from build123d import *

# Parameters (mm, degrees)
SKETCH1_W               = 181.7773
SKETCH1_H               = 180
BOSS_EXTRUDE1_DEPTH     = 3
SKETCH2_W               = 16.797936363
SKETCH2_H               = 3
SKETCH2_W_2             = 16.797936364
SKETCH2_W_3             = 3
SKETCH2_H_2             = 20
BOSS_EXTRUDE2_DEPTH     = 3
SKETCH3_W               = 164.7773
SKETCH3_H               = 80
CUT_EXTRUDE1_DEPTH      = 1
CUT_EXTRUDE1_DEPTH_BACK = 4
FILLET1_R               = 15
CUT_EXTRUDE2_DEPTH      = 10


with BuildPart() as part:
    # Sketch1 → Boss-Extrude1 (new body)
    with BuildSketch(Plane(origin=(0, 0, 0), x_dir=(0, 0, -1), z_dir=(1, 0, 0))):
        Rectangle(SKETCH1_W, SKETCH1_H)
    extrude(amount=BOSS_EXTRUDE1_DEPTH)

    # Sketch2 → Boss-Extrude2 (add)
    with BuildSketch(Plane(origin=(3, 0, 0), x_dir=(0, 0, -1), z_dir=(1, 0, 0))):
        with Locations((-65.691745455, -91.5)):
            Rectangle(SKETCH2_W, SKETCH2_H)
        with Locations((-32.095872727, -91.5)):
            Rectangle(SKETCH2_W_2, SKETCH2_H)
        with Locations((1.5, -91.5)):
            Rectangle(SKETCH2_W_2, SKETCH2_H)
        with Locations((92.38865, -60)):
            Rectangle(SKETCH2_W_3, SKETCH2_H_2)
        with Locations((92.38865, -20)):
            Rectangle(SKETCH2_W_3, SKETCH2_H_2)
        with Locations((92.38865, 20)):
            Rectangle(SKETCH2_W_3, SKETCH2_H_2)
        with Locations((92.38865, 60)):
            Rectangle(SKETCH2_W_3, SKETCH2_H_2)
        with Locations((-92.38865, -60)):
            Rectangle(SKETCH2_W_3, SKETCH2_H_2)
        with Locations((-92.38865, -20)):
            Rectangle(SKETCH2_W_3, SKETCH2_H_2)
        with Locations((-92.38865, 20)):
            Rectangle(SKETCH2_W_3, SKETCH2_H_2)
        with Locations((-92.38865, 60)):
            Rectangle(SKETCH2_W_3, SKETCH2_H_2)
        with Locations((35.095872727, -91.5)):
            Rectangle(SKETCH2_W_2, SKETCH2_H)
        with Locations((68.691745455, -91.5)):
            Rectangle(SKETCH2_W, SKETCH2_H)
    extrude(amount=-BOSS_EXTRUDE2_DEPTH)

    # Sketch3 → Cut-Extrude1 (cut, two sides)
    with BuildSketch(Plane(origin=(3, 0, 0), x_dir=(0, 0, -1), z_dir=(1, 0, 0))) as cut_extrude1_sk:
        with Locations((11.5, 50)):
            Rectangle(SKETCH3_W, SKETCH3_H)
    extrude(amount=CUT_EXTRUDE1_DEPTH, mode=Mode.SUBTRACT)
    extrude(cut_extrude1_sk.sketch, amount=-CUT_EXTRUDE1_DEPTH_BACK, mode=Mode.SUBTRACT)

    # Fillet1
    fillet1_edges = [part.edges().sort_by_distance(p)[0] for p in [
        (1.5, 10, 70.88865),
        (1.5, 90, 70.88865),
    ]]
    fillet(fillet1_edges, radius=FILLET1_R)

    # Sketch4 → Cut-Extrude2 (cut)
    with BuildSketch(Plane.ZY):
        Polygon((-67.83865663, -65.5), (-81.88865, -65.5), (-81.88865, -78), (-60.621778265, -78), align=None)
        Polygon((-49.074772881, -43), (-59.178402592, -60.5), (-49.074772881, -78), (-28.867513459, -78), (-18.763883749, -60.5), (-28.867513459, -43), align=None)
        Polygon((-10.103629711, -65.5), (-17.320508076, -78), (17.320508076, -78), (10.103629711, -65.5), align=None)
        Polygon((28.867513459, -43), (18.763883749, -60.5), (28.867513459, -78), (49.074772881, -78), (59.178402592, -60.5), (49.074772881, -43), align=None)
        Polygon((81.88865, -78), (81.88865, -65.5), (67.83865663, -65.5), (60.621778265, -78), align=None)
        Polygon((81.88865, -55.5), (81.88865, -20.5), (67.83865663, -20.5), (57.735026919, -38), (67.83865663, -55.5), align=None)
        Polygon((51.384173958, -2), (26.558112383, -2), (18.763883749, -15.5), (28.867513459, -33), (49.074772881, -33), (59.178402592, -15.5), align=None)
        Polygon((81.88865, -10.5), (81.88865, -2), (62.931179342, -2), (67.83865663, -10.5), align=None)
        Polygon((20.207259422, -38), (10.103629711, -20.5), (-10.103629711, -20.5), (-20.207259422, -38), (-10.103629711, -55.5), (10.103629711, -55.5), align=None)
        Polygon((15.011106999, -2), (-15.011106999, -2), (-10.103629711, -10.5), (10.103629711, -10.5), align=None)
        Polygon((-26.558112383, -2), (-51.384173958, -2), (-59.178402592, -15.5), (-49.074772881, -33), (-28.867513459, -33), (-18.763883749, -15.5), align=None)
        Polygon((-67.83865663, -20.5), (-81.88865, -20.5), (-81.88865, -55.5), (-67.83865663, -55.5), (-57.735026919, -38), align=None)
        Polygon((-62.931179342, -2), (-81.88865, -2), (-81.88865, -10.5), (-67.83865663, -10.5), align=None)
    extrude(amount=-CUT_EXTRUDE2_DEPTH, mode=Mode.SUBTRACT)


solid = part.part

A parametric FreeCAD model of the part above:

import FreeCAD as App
import Part
import Sketcher
from FreeCAD import Vector
Q = App.Units.Quantity


def edges_at(feature, points):
    """Names of the edges that pass closest to the given points."""
    edges = feature.Shape.Edges
    near = lambda p: min(range(len(edges)), key=lambda i: edges[i].distToShape(Part.Vertex(*p))[0])
    return sorted({f"Edge{near(p) + 1}" for p in points})


def add_polygon(sketch, points):
    """Adds a closed chain of lines whose ends are joined by coincident constraints."""
    first, n = sketch.GeometryCount, len(points)
    for a, b in zip(points, points[1:] + points[:1]):
        sketch.addGeometry(Part.LineSegment(App.Vector(*a, 0), App.Vector(*b, 0)), False)
    for i in range(n):
        sketch.addConstraint(Sketcher.Constraint("Coincident", first + i, 2, first + (i + 1) % n, 1))

doc = App.newDocument("Part")
body = doc.addObject("PartDesign::Body", "Body")

sketch1 = body.newObject("Sketcher::SketchObject", "Sketch")
sketch1.AttachmentSupport = (doc.getObject("YZ_Plane"), [""])
sketch1.MapMode = "FlatFace"
add_polygon(sketch1, [(90, 90.88865), (-90, 90.88865), (-90, -90.88865), (90, -90.88865)])
sketch1.addConstraint([
    Sketcher.Constraint("Horizontal", 0),
    Sketcher.Constraint("Vertical", 1),
    Sketcher.Constraint("Horizontal", 2),
    Sketcher.Constraint("Vertical", 3),
    Sketcher.Constraint("Symmetric", 0, 2, 2, 2, -1, 1),
    Sketcher.Constraint("DistanceX", 0, 2, 0, 1, Q("180 mm")),
    Sketcher.Constraint("DistanceY", 1, 2, 1, 1, Q("181.7773 mm")),
])
pad1 = body.newObject("PartDesign::Pad", "Pad")
pad1.Profile = sketch1
pad1.Length = 3

sketch2 = body.newObject("Sketcher::SketchObject", "Sketch001")
sketch2.AttachmentSupport = (doc.getObject("YZ_Plane"), [""])
sketch2.MapMode = "FlatFace"
sketch2.AttachmentOffset = App.Placement(Vector(0, 0, 3), App.Rotation())
add_polygon(sketch2, [(-90, 74.090714), (-93, 74.090714), (-93, 57.292777), (-90, 57.292777)])
add_polygon(sketch2, [(-90, 40.494841), (-93, 40.494841), (-93, 23.696905), (-90, 23.696905)])
add_polygon(sketch2, [(-90, 6.898968), (-93, 6.898968), (-93, -9.898968), (-90, -9.898968)])
add_polygon(sketch2, [(-50, -90.88865), (-70, -90.88865), (-70, -93.88865), (-50, -93.88865)])
add_polygon(sketch2, [(-10, -90.88865), (-30, -90.88865), (-30, -93.88865), (-10, -93.88865)])
add_polygon(sketch2, [(30, -90.88865), (10, -90.88865), (10, -93.88865), (30, -93.88865)])
add_polygon(sketch2, [(70, -90.88865), (50, -90.88865), (50, -93.88865), (70, -93.88865)])
add_polygon(sketch2, [(-50, 93.88865), (-70, 93.88865), (-70, 90.88865), (-50, 90.88865)])
add_polygon(sketch2, [(-10, 93.88865), (-30, 93.88865), (-30, 90.88865), (-10, 90.88865)])
add_polygon(sketch2, [(30, 93.88865), (10, 93.88865), (10, 90.88865), (30, 90.88865)])
add_polygon(sketch2, [(70, 93.88865), (50, 93.88865), (50, 90.88865), (70, 90.88865)])
add_polygon(sketch2, [(-90, -26.696905), (-93, -26.696905), (-93, -43.494841), (-90, -43.494841)])
add_polygon(sketch2, [(-90, -60.292777), (-93, -60.292777), (-93, -77.090714), (-90, -77.090714)])
sketch2.addConstraint([
    Sketcher.Constraint("Horizontal", 0),
    Sketcher.Constraint("Vertical", 1),
    Sketcher.Constraint("Horizontal", 2),
    Sketcher.Constraint("Vertical", 3),
    Sketcher.Constraint("Horizontal", 4),
    Sketcher.Constraint("Vertical", 5),
    Sketcher.Constraint("Horizontal", 6),
    Sketcher.Constraint("Vertical", 7),
    Sketcher.Constraint("Horizontal", 8),
    Sketcher.Constraint("Vertical", 9),
    Sketcher.Constraint("Horizontal", 10),
    Sketcher.Constraint("Vertical", 11),
    Sketcher.Constraint("Horizontal", 12),
    Sketcher.Constraint("Vertical", 13),
    Sketcher.Constraint("Horizontal", 14),
    Sketcher.Constraint("Vertical", 15),
    Sketcher.Constraint("Horizontal", 16),
    Sketcher.Constraint("Vertical", 17),
    Sketcher.Constraint("Horizontal", 18),
    Sketcher.Constraint("Vertical", 19),
    Sketcher.Constraint("Horizontal", 20),
    Sketcher.Constraint("Vertical", 21),
    Sketcher.Constraint("Horizontal", 22),
    Sketcher.Constraint("Vertical", 23),
    Sketcher.Constraint("Horizontal", 24),
    Sketcher.Constraint("Vertical", 25),
    Sketcher.Constraint("Horizontal", 26),
    Sketcher.Constraint("Vertical", 27),
    Sketcher.Constraint("Horizontal", 28),
    Sketcher.Constraint("Vertical", 29),
    Sketcher.Constraint("Horizontal", 30),
    Sketcher.Constraint("Vertical", 31),
    Sketcher.Constraint("Horizontal", 32),
    Sketcher.Constraint("Vertical", 33),
    Sketcher.Constraint("Horizontal", 34),
    Sketcher.Constraint("Vertical", 35),
    Sketcher.Constraint("Horizontal", 36),
    Sketcher.Constraint("Vertical", 37),
    Sketcher.Constraint("Horizontal", 38),
    Sketcher.Constraint("Vertical", 39),
    Sketcher.Constraint("Horizontal", 40),
    Sketcher.Constraint("Vertical", 41),
    Sketcher.Constraint("Horizontal", 42),
    Sketcher.Constraint("Vertical", 43),
    Sketcher.Constraint("Horizontal", 44),
    Sketcher.Constraint("Vertical", 45),
    Sketcher.Constraint("Horizontal", 46),
    Sketcher.Constraint("Vertical", 47),
    Sketcher.Constraint("Horizontal", 48),
    Sketcher.Constraint("Vertical", 49),
    Sketcher.Constraint("Horizontal", 50),
    Sketcher.Constraint("Vertical", 51),
    Sketcher.Constraint("Symmetric", 26, 2, 28, 2, -1, 1),
    Sketcher.Constraint("Symmetric", 24, 2, 30, 2, -1, 1),
    Sketcher.Constraint("Symmetric", 22, 2, 32, 2, -1, 1),
    Sketcher.Constraint("Symmetric", 20, 2, 34, 2, -1, 1),
    Sketcher.Constraint("Symmetric", 18, 2, 36, 2, -1, 1),
    Sketcher.Constraint("Symmetric", 16, 2, 38, 2, -1, 1),
    Sketcher.Constraint("Symmetric", 14, 2, 40, 2, -1, 1),
    Sketcher.Constraint("Symmetric", 12, 2, 42, 2, -1, 1),
    Sketcher.Constraint("Symmetric", 19, 2, 20, 2, -2),
    Sketcher.Constraint("Symmetric", 17, 2, 22, 2, -2),
    Sketcher.Constraint("Symmetric", 15, 2, 24, 2, -2),
    Sketcher.Constraint("Symmetric", 13, 2, 26, 2, -2),
    Sketcher.Constraint("Horizontal", 15, 2, 16, 2),
    Sketcher.Constraint("Horizontal", 14, 2, 17, 2),
    Sketcher.Constraint("Vertical", 1, 2, 4, 2),
    Sketcher.Constraint("Vertical", 3, 2, 6, 2),
    Sketcher.Constraint("Vertical", 5, 2, 8, 2),
    Sketcher.Constraint("Vertical", 7, 2, 10, 2),
    Sketcher.Constraint("Vertical", 9, 2, 44, 2),
    Sketcher.Constraint("Vertical", 11, 2, 46, 2),
    Sketcher.Constraint("Vertical", 45, 2, 48, 2),
    Sketcher.Constraint("Vertical", 47, 2, 50, 2),
    Sketcher.Constraint("Equal", 14, 16),
    Sketcher.Constraint("Equal", 3, 5),
    Sketcher.Constraint("Equal", 7, 9),
    Sketcher.Constraint("Equal", 50, 13),
    Sketcher.Constraint("Equal", 11, 45),
    Sketcher.Constraint("Equal", 47, 49),
    Sketcher.Constraint("DistanceX", 0, 2, 0, 1, Q("3 mm")),
    Sketcher.Constraint("DistanceX", 12, 2, 12, 1, Q("20 mm")),
    Sketcher.Constraint("DistanceX", 0, 2, -1, 1, Q("93 mm")),
    Sketcher.Constraint("DistanceX", 12, 2, -1, 1, Q("70 mm")),
    Sketcher.Constraint("DistanceX", 16, 2, -1, 1, Q("30 mm")),
    Sketcher.Constraint("DistanceY", 1, 2, 1, 1, Q("16.797936 mm")),
    Sketcher.Constraint("DistanceY", -1, 1, 4, 2, Q("40.494841 mm")),
    Sketcher.Constraint("DistanceY", -1, 1, 8, 2, Q("6.898968 mm")),
    Sketcher.Constraint("DistanceY", 12, 2, -1, 1, Q("90.88865 mm")),
    Sketcher.Constraint("DistanceY", 45, 2, -1, 1, Q("43.494841 mm")),
    Sketcher.Constraint("DistanceY", 5, 2, 0, 2, Q("50.393809 mm")),
    Sketcher.Constraint("DistanceY", 48, 2, -1, 1, Q("60.292777 mm")),
])
pad2 = body.newObject("PartDesign::Pad", "Pad001")
pad2.Profile = sketch2
pad2.Length = 3
pad2.Reversed = True

sketch3 = body.newObject("Sketcher::SketchObject", "Sketch002")
sketch3.AttachmentSupport = (doc.getObject("YZ_Plane"), [""])
sketch3.MapMode = "FlatFace"
sketch3.AttachmentOffset = App.Placement(Vector(0, 0, 3), App.Rotation())
add_polygon(sketch3, [(90, 70.88865), (10, 70.88865), (10, -93.88865), (90, -93.88865)])
sketch3.addConstraint([
    Sketcher.Constraint("Horizontal", 0),
    Sketcher.Constraint("Vertical", 1),
    Sketcher.Constraint("Horizontal", 2),
    Sketcher.Constraint("Vertical", 3),
    Sketcher.Constraint("DistanceX", 0, 2, 0, 1, Q("80 mm")),
    Sketcher.Constraint("DistanceX", -1, 1, 0, 2, Q("10 mm")),
    Sketcher.Constraint("DistanceY", 1, 2, 1, 1, Q("164.7773 mm")),
    Sketcher.Constraint("DistanceY", -1, 1, 0, 2, Q("70.88865 mm")),
])
pocket1 = body.newObject("PartDesign::Pocket", "Pocket")
pocket1.Profile = sketch3
pocket1.Type = "ThroughAll"
pocket1.Midplane = True
doc.recompute()

fillet = body.newObject("PartDesign::Fillet", "Fillet")
fillet.Base = (pocket1, edges_at(pocket1, [(1.5, 10, 70.889), (1.5, 90, 70.889)]))
fillet.Radius = 15

sketch4 = body.newObject("Sketcher::SketchObject", "Sketch003")
sketch4.AttachmentSupport = (doc.getObject("YZ_Plane"), [""])
sketch4.MapMode = "FlatFace"
add_polygon(sketch4, [(-65.5, -67.838657), (-65.5, -81.88865), (-78, -81.88865), (-78, -60.621778)])
add_polygon(sketch4, [(-43, -49.074773), (-60.5, -59.178403), (-78, -49.074773), (-78, -28.867513), (-60.5, -18.763884), (-43, -28.867513)])
add_polygon(sketch4, [(-65.5, -10.10363), (-78, -17.320508), (-78, 17.320508), (-65.5, 10.10363)])
add_polygon(sketch4, [(-43, 28.867513), (-60.5, 18.763884), (-78, 28.867513), (-78, 49.074773), (-60.5, 59.178403), (-43, 49.074773)])
add_polygon(sketch4, [(-78, 81.88865), (-65.5, 81.88865), (-65.5, 67.838657), (-78, 60.621778)])
add_polygon(sketch4, [(-55.5, 81.88865), (-20.5, 81.88865), (-20.5, 67.838657), (-38, 57.735027), (-55.5, 67.838657)])
add_polygon(sketch4, [(-2, 51.384174), (-2, 26.558112), (-15.5, 18.763884), (-33, 28.867513), (-33, 49.074773), (-15.5, 59.178403)])
add_polygon(sketch4, [(-10.5, 81.88865), (-2, 81.88865), (-2, 62.931179), (-10.5, 67.838657)])
add_polygon(sketch4, [(-38, 20.207259), (-20.5, 10.10363), (-20.5, -10.10363), (-38, -20.207259), (-55.5, -10.10363), (-55.5, 10.10363)])
add_polygon(sketch4, [(-2, 15.011107), (-2, -15.011107), (-10.5, -10.10363), (-10.5, 10.10363)])
add_polygon(sketch4, [(-2, -26.558112), (-2, -51.384174), (-15.5, -59.178403), (-33, -49.074773), (-33, -28.867513), (-15.5, -18.763884)])
add_polygon(sketch4, [(-20.5, -67.838657), (-20.5, -81.88865), (-55.5, -81.88865), (-55.5, -67.838657), (-38, -57.735027)])
add_polygon(sketch4, [(-2, -62.931179), (-2, -81.88865), (-10.5, -81.88865), (-10.5, -67.838657)])
sketch4.addConstraint([
    Sketcher.Constraint("Vertical", 0),
    Sketcher.Constraint("Horizontal", 1),
    Sketcher.Constraint("Vertical", 2),
    Sketcher.Constraint("Vertical", 6),
    Sketcher.Constraint("Vertical", 9),
    Sketcher.Constraint("Vertical", 11),
    Sketcher.Constraint("Vertical", 13),
    Sketcher.Constraint("Vertical", 16),
    Sketcher.Constraint("Vertical", 19),
    Sketcher.Constraint("Horizontal", 20),
    Sketcher.Constraint("Vertical", 21),
    Sketcher.Constraint("Vertical", 23),
    Sketcher.Constraint("Horizontal", 24),
    Sketcher.Constraint("Vertical", 25),
    Sketcher.Constraint("Vertical", 28),
    Sketcher.Constraint("Vertical", 29),
    Sketcher.Constraint("Vertical", 32),
    Sketcher.Constraint("Horizontal", 35),
    Sketcher.Constraint("Vertical", 36),
    Sketcher.Constraint("Vertical", 38),
    Sketcher.Constraint("Vertical", 40),
    Sketcher.Constraint("Vertical", 43),
    Sketcher.Constraint("Vertical", 45),
    Sketcher.Constraint("Vertical", 47),
    Sketcher.Constraint("Vertical", 49),
    Sketcher.Constraint("Vertical", 52),
    Sketcher.Constraint("Vertical", 55),
    Sketcher.Constraint("Horizontal", 56),
    Sketcher.Constraint("Vertical", 57),
    Sketcher.Constraint("Vertical", 60),
    Sketcher.Constraint("Horizontal", 61),
    Sketcher.Constraint("Vertical", 62),
    Sketcher.Constraint("Symmetric", 7, 2, 14, 2, -1),
    Sketcher.Constraint("Symmetric", 6, 2, 15, 2, -1),
    Sketcher.Constraint("Symmetric", 4, 2, 17, 2, -1),
    Sketcher.Constraint("Symmetric", 9, 2, 18, 2, -1),
    Sketcher.Constraint("Symmetric", 0, 2, 20, 2, -1),
    Sketcher.Constraint("Symmetric", 2, 2, 22, 2, -1),
    Sketcher.Constraint("Symmetric", 41, 2, 44, 2, -1),
    Sketcher.Constraint("Symmetric", 34, 2, 49, 2, -1),
    Sketcher.Constraint("Symmetric", 33, 2, 50, 2, -1),
    Sketcher.Constraint("Symmetric", 32, 2, 51, 2, -1),
    Sketcher.Constraint("Symmetric", 30, 2, 53, 2, -1),
    Sketcher.Constraint("Symmetric", 24, 2, 55, 2, -1),
    Sketcher.Constraint("Symmetric", 27, 2, 57, 2, -1),
    Sketcher.Constraint("Symmetric", 26, 2, 58, 2, -1),
    Sketcher.Constraint("Symmetric", 35, 2, 60, 2, -1),
    Sketcher.Constraint("Symmetric", 37, 2, 62, 2, -1),
    Sketcher.Constraint("Parallel", 3, 5),
    Sketcher.Constraint("Parallel", 4, 7),
    Sketcher.Constraint("Parallel", 5, 8),
    Sketcher.Constraint("Parallel", 7, 10),
    Sketcher.Constraint("Parallel", 8, 12),
    Sketcher.Constraint("Parallel", 10, 14),
    Sketcher.Constraint("Parallel", 12, 15),
    Sketcher.Constraint("Parallel", 14, 17),
    Sketcher.Constraint("Parallel", 17, 22),
    Sketcher.Constraint("Parallel", 22, 26),
    Sketcher.Constraint("Parallel", 18, 27),
    Sketcher.Constraint("Parallel", 26, 30),
    Sketcher.Constraint("Parallel", 27, 31),
    Sketcher.Constraint("Parallel", 30, 33),
    Sketcher.Constraint("Parallel", 31, 34),
    Sketcher.Constraint("Parallel", 34, 37),
    Sketcher.Constraint("Parallel", 37, 39),
    Sketcher.Constraint("Parallel", 33, 41),
    Sketcher.Constraint("Parallel", 39, 42),
    Sketcher.Constraint("Parallel", 41, 44),
    Sketcher.Constraint("Parallel", 42, 46),
    Sketcher.Constraint("Parallel", 44, 48),
    Sketcher.Constraint("Parallel", 50, 53),
    Sketcher.Constraint("Parallel", 51, 54),
    Sketcher.Constraint("Parallel", 54, 59),
    Sketcher.Constraint("Parallel", 58, 63),
    Sketcher.Constraint("Horizontal", 6, 2, 8, 2),
    Sketcher.Constraint("Horizontal", 5, 2, 9, 2),
    Sketcher.Constraint("Horizontal", 23, 2, 24, 2),
    Sketcher.Constraint("Horizontal", 21, 2, 25, 2),
    Sketcher.Constraint("Horizontal", 25, 2, 27, 2),
    Sketcher.Constraint("Horizontal", 14, 2, 30, 2),
    Sketcher.Constraint("Horizontal", 19, 2, 31, 2),
    Sketcher.Constraint("Horizontal", 18, 2, 32, 2),
    Sketcher.Constraint("Horizontal", 17, 2, 33, 2),
    Sketcher.Constraint("Horizontal", 28, 2, 35, 2),
    Sketcher.Constraint("Horizontal", 27, 2, 37, 2),
    Sketcher.Constraint("Horizontal", 12, 2, 39, 2),
    Sketcher.Constraint("Horizontal", 13, 2, 40, 2),
    Sketcher.Constraint("Horizontal", 40, 2, 42, 2),
    Sketcher.Constraint("Horizontal", 42, 2, 46, 2),
    Sketcher.Constraint("Horizontal", 43, 2, 47, 2),
    Sketcher.Constraint("Vertical", 2, 2, 5, 2),
    Sketcher.Constraint("Vertical", 6, 2, 10, 2),
    Sketcher.Constraint("Vertical", 3, 2, 12, 2),
    Sketcher.Constraint("Vertical", 34, 2, 35, 2),
    Sketcher.Constraint("Vertical", 25, 2, 39, 2),
    Sketcher.Constraint("Vertical", 26, 2, 41, 2),
    Sketcher.Constraint("Vertical", 36, 2, 45, 2),
    Sketcher.Constraint("Vertical", 38, 2, 46, 2),
    Sketcher.Constraint("Equal", 9, 13),
    Sketcher.Constraint("Equal", 18, 26),
    Sketcher.Constraint("DistanceX", 24, 1, 24, 2, Q("35 mm")),
    Sketcher.Constraint("Angle", 3, Q("-30 deg")),
    Sketcher.Constraint("DistanceX", 1, 2, 1, 1, Q("12.5 mm")),
    Sketcher.Constraint("DistanceX", 35, 1, 35, 2, Q("8.5 mm")),
    Sketcher.Constraint("DistanceX", 1, 2, -1, 1, Q("78 mm")),
    Sketcher.Constraint("DistanceX", 26, 2, -1, 1, Q("38 mm")),
    Sketcher.Constraint("DistanceX", 29, 2, -1, 1, Q("2 mm")),
    Sketcher.Constraint("DistanceX", 31, 2, -1, 1, Q("33 mm")),
    Sketcher.Constraint("DistanceY", 2, 1, 2, 2, Q("21.266872 mm")),
    Sketcher.Constraint("DistanceY", 6, 1, 6, 2, Q("20.207259 mm")),
    Sketcher.Constraint("DistanceY", 0, 2, -1, 1, Q("81.88865 mm")),
    Sketcher.Constraint("DistanceY", 4, 2, -1, 1, Q("59.178403 mm")),
])
pocket2 = body.newObject("PartDesign::Pocket", "Pocket001")
pocket2.Profile = sketch4
pocket2.Length = 10
pocket2.Reversed = True

doc.recompute()
